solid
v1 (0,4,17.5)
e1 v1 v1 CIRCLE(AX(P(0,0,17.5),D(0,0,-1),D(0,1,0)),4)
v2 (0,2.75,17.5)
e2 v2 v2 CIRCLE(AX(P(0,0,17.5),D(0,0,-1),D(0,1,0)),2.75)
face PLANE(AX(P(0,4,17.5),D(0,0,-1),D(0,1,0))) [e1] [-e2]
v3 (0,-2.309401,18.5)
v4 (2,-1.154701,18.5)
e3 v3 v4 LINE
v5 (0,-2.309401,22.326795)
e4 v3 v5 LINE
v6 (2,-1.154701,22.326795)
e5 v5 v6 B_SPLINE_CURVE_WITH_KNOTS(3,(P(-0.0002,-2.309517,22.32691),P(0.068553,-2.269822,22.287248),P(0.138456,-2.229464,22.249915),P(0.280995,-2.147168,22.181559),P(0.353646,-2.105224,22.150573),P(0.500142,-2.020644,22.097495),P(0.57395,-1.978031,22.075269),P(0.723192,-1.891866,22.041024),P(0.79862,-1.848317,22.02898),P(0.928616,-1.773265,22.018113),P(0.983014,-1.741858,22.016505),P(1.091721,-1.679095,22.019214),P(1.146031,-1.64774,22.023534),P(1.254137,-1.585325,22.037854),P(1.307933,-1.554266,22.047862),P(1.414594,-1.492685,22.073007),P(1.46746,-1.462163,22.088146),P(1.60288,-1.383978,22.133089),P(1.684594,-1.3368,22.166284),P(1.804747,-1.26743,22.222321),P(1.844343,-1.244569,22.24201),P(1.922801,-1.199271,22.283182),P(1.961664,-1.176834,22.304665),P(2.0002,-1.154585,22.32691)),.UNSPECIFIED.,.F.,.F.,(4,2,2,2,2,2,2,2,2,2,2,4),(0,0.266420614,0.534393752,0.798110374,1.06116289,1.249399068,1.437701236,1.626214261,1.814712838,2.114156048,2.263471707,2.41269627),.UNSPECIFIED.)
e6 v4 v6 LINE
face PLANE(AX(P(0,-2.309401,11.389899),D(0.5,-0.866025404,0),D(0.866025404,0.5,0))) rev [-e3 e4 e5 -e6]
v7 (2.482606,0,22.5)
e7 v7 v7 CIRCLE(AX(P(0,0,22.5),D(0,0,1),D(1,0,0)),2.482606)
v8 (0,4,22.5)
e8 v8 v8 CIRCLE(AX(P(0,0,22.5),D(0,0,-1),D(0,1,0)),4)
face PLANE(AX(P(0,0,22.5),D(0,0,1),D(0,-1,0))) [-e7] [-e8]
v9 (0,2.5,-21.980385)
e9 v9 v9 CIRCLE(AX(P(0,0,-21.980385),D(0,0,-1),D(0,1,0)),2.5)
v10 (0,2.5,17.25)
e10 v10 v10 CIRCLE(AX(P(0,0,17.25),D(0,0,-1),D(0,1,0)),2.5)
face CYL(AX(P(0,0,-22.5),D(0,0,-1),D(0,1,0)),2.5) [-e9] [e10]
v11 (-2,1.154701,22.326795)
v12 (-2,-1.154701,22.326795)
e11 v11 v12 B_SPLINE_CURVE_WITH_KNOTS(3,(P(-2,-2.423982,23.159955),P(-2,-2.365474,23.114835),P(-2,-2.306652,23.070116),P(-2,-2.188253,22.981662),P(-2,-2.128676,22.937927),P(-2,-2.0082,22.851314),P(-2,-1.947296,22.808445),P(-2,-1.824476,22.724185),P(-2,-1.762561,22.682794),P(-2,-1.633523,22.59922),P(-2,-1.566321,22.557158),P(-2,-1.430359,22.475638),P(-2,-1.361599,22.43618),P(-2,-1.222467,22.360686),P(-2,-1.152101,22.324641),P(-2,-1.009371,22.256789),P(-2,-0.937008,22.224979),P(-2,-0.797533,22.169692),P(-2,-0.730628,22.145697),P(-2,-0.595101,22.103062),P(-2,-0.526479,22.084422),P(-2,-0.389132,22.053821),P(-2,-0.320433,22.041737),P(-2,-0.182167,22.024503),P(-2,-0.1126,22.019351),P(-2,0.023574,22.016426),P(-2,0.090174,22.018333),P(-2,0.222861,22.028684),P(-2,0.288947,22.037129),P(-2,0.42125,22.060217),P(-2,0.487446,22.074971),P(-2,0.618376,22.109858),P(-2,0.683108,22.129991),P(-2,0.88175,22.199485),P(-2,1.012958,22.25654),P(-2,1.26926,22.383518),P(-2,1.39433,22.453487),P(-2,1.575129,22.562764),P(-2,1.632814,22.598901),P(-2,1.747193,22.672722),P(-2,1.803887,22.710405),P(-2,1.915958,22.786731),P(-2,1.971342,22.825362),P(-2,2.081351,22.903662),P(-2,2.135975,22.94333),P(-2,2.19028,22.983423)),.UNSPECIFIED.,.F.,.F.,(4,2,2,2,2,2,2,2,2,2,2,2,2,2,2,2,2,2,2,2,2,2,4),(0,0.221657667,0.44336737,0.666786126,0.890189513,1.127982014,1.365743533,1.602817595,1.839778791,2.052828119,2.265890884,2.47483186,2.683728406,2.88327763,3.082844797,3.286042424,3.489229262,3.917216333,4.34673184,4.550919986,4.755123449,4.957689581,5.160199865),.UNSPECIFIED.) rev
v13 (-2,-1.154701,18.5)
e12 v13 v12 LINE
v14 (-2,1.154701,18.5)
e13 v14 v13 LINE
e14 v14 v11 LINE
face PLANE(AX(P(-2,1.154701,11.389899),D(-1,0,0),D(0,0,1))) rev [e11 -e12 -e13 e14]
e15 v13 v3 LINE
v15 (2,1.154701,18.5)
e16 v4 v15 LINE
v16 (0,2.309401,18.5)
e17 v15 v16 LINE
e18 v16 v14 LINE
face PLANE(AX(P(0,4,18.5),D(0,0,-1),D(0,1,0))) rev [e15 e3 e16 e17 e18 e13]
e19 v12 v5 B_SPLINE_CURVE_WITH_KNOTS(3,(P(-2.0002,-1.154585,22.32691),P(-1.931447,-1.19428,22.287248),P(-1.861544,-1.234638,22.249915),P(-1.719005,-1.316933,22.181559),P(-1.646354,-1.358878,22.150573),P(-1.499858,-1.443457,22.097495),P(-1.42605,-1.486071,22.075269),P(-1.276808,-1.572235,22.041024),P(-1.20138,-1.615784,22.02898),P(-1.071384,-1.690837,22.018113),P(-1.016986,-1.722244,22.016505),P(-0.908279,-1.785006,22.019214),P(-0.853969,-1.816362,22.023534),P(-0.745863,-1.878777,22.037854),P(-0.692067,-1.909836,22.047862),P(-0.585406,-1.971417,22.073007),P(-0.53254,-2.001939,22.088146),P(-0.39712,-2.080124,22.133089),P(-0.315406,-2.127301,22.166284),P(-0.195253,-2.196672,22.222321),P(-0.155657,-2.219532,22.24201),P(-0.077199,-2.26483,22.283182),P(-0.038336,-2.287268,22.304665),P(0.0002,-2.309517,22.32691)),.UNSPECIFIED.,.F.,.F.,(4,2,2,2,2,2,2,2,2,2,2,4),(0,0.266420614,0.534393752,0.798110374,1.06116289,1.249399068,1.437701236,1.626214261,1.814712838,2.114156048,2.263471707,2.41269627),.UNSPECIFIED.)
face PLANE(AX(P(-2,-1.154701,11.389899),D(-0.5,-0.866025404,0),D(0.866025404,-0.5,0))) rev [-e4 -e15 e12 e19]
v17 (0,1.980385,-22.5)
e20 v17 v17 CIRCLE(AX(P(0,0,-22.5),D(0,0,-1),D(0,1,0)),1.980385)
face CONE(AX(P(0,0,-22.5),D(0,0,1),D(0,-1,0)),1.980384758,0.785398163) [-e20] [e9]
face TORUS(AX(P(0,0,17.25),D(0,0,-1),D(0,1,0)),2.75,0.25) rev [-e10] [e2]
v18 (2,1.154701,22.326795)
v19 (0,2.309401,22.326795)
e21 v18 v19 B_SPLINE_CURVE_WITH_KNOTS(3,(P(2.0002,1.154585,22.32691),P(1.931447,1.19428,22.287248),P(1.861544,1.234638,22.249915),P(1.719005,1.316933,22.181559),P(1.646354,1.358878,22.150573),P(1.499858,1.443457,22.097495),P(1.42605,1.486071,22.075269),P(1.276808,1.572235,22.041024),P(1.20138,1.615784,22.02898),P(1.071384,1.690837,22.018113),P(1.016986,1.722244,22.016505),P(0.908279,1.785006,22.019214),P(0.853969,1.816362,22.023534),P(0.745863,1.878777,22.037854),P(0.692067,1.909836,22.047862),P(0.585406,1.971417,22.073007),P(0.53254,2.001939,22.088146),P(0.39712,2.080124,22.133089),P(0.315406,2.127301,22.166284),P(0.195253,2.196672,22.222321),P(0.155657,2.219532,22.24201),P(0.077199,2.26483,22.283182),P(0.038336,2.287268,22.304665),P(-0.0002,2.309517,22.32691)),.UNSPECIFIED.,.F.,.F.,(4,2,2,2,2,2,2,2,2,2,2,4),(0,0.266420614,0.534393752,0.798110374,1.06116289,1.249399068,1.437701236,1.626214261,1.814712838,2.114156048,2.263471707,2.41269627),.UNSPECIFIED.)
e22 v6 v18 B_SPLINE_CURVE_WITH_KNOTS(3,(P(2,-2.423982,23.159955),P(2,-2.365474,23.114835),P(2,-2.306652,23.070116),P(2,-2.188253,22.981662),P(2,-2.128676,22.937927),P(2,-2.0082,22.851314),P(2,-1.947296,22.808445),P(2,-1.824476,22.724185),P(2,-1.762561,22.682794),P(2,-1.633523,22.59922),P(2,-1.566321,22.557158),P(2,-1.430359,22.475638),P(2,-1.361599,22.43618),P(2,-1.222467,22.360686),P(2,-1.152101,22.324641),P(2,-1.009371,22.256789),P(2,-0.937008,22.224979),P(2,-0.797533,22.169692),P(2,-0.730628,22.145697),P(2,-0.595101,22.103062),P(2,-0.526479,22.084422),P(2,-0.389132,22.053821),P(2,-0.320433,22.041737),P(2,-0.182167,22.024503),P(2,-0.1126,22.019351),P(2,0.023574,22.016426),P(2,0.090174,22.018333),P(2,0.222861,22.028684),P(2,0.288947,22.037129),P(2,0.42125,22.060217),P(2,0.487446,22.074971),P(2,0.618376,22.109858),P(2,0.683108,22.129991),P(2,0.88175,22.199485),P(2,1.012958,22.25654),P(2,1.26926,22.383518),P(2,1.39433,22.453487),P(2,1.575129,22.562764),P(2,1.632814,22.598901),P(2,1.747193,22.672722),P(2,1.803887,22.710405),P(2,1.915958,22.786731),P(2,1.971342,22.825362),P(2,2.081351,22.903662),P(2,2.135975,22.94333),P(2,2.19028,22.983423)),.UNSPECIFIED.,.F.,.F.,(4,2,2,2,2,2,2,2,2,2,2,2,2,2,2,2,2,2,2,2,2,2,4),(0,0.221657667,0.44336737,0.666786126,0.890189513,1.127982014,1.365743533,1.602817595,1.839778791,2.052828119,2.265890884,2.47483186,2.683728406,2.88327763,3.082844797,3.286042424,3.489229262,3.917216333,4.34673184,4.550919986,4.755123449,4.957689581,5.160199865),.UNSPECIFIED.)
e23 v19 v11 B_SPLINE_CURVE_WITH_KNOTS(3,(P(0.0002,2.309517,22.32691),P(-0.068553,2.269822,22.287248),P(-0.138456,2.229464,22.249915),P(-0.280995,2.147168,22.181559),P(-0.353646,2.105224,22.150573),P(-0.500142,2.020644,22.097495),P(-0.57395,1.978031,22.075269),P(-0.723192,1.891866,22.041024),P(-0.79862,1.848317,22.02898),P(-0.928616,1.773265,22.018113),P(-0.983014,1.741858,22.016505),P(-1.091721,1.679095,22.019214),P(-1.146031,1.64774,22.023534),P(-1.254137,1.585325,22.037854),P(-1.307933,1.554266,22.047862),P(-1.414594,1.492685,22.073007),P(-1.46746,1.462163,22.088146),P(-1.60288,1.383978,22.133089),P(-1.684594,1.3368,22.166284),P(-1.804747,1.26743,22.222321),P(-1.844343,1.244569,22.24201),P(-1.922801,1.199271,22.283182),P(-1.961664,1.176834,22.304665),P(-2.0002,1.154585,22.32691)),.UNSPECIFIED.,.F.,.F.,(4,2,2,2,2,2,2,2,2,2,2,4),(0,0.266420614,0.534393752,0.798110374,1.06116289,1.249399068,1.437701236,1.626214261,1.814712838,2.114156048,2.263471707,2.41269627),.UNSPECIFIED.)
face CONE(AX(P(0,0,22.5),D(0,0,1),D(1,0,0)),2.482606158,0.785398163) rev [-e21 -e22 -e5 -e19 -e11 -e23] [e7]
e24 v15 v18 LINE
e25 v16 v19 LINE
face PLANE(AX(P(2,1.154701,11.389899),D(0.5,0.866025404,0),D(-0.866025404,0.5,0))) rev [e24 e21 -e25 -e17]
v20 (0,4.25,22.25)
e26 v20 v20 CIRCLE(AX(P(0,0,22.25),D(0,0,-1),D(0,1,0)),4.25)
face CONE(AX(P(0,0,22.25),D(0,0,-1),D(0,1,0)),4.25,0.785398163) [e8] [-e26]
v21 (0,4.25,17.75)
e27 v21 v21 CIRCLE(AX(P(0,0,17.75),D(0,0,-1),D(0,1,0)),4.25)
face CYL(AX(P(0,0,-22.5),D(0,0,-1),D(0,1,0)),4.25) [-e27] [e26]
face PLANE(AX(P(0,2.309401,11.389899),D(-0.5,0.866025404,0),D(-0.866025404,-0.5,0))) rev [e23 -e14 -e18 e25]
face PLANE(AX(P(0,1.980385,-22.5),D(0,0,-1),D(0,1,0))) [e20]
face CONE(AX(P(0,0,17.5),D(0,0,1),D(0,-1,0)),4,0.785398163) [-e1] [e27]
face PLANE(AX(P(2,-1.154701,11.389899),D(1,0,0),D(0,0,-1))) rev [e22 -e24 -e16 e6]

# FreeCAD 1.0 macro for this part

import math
import FreeCAD as App
import Part
import Sketcher

V = App.Vector
Q = App.Units.Quantity

doc = App.newDocument("Part")
body = doc.addObject("PartDesign::Body", "Body")

sketch1 = body.newObject("Sketcher::SketchObject", "Sketch")
sketch1.AttachmentSupport = (doc.getObject("YZ_Plane"), [""])
sketch1.MapMode = "FlatFace"
sketch1.addGeometry([
    Part.LineSegment(V(4, 22.5, 0), V(0, 22.5, 0)),
    Part.LineSegment(V(0, 22.5, 0), V(0, -22.5, 0)),
    Part.LineSegment(V(0, -22.5, 0), V(1.98, -22.5, 0)),
    Part.LineSegment(V(1.98, -22.5, 0), V(2.5, -21.98, 0)),
    Part.LineSegment(V(2.5, -21.98, 0), V(2.5, 17.25, 0)),
    Part.ArcOfCircle(Part.Circle(V(2.75, 17.25, 0), V(0, 0, 1), 0.25), math.radians(90), math.radians(180)),
    Part.LineSegment(V(2.75, 17.5, 0), V(4, 17.5, 0)),
    Part.LineSegment(V(4, 17.5, 0), V(4.25, 17.75, 0)),
    Part.LineSegment(V(4.25, 17.75, 0), V(4.25, 22.25, 0)),
    Part.LineSegment(V(4.25, 22.25, 0), V(4, 22.5, 0)),
], False)
sketch1.addConstraint([
    Sketcher.Constraint("Coincident", 0, 2, 1, 1),
    Sketcher.Constraint("Coincident", 1, 2, 2, 1),
    Sketcher.Constraint("Coincident", 2, 2, 3, 1),
    Sketcher.Constraint("Coincident", 3, 2, 4, 1),
    Sketcher.Constraint("Tangent", 4, 2, 5, 2),
    Sketcher.Constraint("Tangent", 5, 1, 6, 1),
    Sketcher.Constraint("Coincident", 6, 2, 7, 1),
    Sketcher.Constraint("Coincident", 7, 2, 8, 1),
    Sketcher.Constraint("Coincident", 8, 2, 9, 1),
    Sketcher.Constraint("Coincident", 9, 2, 0, 1),
    Sketcher.Constraint("Horizontal", 0),
    Sketcher.Constraint("Vertical", 1),
    Sketcher.Constraint("Horizontal", 2),
    Sketcher.Constraint("Vertical", 4),
    Sketcher.Constraint("Horizontal", 6),
    Sketcher.Constraint("Vertical", 8),
    Sketcher.Constraint("Symmetric", 0, 2, 1, 2, -1, 1),
    Sketcher.Constraint("Parallel", 3, 7),
    Sketcher.Constraint("Perpendicular", 7, 9),
    Sketcher.Constraint("Vertical", 6, 2, 9, 2),
    Sketcher.Constraint("Equal", 7, 9),
    Sketcher.Constraint("DistanceX", 0, 2, 0, 1, Q("4 mm")),
    Sketcher.Constraint("DistanceY", 1, 2, 1, 1, Q("45 mm")),
    Sketcher.Constraint("Radius", 5, Q("0.25 mm")),
    Sketcher.Constraint("DistanceY", 8, 1, 8, 2, Q("4.5 mm")),
    Sketcher.Constraint("DistanceY", 5, 1, 0, 2, Q("5 mm")),
    Sketcher.Constraint("DistanceX", 6, 1, 6, 2, Q("1.25 mm")),
    Sketcher.Constraint("DistanceX", 2, 1, 2, 2, Q("1.980385 mm")),
])
revolution = body.newObject("PartDesign::Revolution", "Revolution")
revolution.Profile = sketch1
revolution.ReferenceAxis = (sketch1, ["V_Axis"])
revolution.Angle = 360

sketch2 = body.newObject("Sketcher::SketchObject", "Sketch001")
sketch2.AttachmentSupport = (doc.getObject("XY_Plane"), [""])
sketch2.MapMode = "FlatFace"
sketch2.AttachmentOffset = App.Placement(V(0, 0, 22.5), App.Rotation())
sketch2.addGeometry([
    Part.LineSegment(V(2, -1.2, 0), V(2, 1.2, 0)),
    Part.LineSegment(V(2, 1.2, 0), V(0, 2.3, 0)),
    Part.LineSegment(V(0, 2.3, 0), V(-2, 1.2, 0)),
    Part.LineSegment(V(-2, 1.2, 0), V(-2, -1.2, 0)),
    Part.LineSegment(V(-2, -1.2, 0), V(0, -2.3, 0)),
    Part.LineSegment(V(0, -2.3, 0), V(2, -1.2, 0)),
], False)
sketch2.addConstraint([
    Sketcher.Constraint("Coincident", 0, 2, 1, 1),
    Sketcher.Constraint("Coincident", 1, 2, 2, 1),
    Sketcher.Constraint("Coincident", 2, 2, 3, 1),
    Sketcher.Constraint("Coincident", 3, 2, 4, 1),
    Sketcher.Constraint("Coincident", 4, 2, 5, 1),
    Sketcher.Constraint("Coincident", 5, 2, 0, 1),
    Sketcher.Constraint("Vertical", 0),
    Sketcher.Constraint("Vertical", 3),
    Sketcher.Constraint("Symmetric", 0, 2, 3, 2, -1, 1),
    Sketcher.Constraint("Symmetric", 1, 2, 4, 2, -1, 1),
    Sketcher.Constraint("PointOnObject", 1, 2, -2),
    Sketcher.Constraint("Parallel", 2, 5),
    Sketcher.Constraint("Horizontal", 0, 2, 2, 2),
    Sketcher.Constraint("Angle", 1, Q("150 deg")),
    Sketcher.Constraint("DistanceX", -1, 1, 0, 2, Q("2 mm")),
    Sketcher.Constraint("DistanceY", 0, 1, 0, 2, Q("2.309401 mm")),
])
pocket1 = body.newObject("PartDesign::Pocket", "Pocket")
pocket1.Profile = sketch2
pocket1.Length = 4

sketch3 = body.newObject("Sketcher::SketchObject", "Sketch002")
sketch3.AttachmentSupport = (doc.getObject("YZ_Plane"), [""])
sketch3.MapMode = "FlatFace"
sketch3.addGeometry([
    Part.LineSegment(V(0, 22.5, 0), V(-2.5, 22.5, 0)),
    Part.LineSegment(V(-2.5, 22.5, 0), V(0, 20, 0)),
    Part.LineSegment(V(0, 20, 0), V(0, 22.5, 0)),
], False)
sketch3.addConstraint([
    Sketcher.Constraint("Coincident", 0, 2, 1, 1),
    Sketcher.Constraint("Coincident", 1, 2, 2, 1),
    Sketcher.Constraint("Coincident", 2, 2, 0, 1),
    Sketcher.Constraint("Horizontal", 0),
    Sketcher.Constraint("Vertical", 2),
    Sketcher.Constraint("PointOnObject", 1, 2, -2),
    Sketcher.Constraint("Equal", 0, 2),
    Sketcher.Constraint("DistanceY", -1, 1, 0, 2, Q("22.5 mm")),
    Sketcher.Constraint("DistanceX", 0, 2, 0, 1, Q("2.482606 mm")),
])
groove = body.newObject("PartDesign::Groove", "Groove")
groove.Profile = sketch3
groove.ReferenceAxis = (sketch3, ["V_Axis"])
groove.Angle = 360

doc.recompute()
